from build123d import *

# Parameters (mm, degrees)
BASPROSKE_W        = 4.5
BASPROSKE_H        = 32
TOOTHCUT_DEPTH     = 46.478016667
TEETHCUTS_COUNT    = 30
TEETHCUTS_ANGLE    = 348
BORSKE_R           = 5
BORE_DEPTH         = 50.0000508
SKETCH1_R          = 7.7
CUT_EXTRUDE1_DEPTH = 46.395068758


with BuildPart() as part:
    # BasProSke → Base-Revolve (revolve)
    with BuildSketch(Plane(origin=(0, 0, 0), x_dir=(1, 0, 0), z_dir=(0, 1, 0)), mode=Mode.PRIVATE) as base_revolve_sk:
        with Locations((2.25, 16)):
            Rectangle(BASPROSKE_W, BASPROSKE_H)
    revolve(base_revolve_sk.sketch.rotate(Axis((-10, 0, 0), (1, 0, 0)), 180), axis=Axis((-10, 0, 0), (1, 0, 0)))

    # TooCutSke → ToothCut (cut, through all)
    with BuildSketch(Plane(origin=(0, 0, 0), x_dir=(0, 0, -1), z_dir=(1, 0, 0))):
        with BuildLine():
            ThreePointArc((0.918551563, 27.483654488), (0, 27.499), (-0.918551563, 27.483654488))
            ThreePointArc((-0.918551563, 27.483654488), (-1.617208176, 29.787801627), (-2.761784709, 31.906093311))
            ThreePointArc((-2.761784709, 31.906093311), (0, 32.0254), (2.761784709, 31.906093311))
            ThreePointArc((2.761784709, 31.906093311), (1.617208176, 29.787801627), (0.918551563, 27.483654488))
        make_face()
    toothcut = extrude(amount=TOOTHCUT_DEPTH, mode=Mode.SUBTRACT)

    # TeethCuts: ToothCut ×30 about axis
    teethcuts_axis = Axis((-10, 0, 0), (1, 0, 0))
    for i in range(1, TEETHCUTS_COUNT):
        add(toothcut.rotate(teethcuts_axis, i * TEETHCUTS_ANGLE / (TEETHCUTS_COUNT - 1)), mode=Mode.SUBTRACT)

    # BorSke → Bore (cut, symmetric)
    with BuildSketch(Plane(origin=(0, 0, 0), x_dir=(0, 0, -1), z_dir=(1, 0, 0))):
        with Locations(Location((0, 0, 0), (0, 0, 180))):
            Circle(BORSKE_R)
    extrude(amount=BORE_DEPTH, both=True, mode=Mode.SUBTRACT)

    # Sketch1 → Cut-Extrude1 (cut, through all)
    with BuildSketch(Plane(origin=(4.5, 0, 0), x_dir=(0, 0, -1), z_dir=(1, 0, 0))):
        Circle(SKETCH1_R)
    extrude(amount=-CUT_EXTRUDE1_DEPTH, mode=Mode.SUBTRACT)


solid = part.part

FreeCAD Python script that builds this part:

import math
import FreeCAD as App
import Part
import Sketcher
from FreeCAD import Vector
Q = App.Units.Quantity

doc = App.newDocument("Part")
body = doc.addObject("PartDesign::Body", "Body")

# Sketch on XZ plane
sketch1 = doc.addObject("Sketcher::SketchObject", "Sketch")
body.addObject(sketch1)
sketch1.AttachmentSupport = (doc.XZ_Plane, [""])
sketch1.MapMode = "FlatFace"
sketch1.addGeometry([
    Part.LineSegment(Vector(0, -32, 0), Vector(0, 0, 0)),
    Part.LineSegment(Vector(0, 0, 0), Vector(4.5, 0, 0)),
    Part.LineSegment(Vector(4.5, 0, 0), Vector(4.5, -32, 0)),
    Part.LineSegment(Vector(4.5, -32, 0), Vector(0, -32, 0)),
], False)
sketch1.addConstraint([
    Sketcher.Constraint("Coincident", 0, 2, 1, 1),
    Sketcher.Constraint("Coincident", 1, 2, 2, 1),
    Sketcher.Constraint("Coincident", 2, 2, 3, 1),
    Sketcher.Constraint("Coincident", 3, 2, 0, 1),
    Sketcher.Constraint("Vertical", 0),
    Sketcher.Constraint("Horizontal", 1),
    Sketcher.Constraint("Vertical", 2),
    Sketcher.Constraint("Horizontal", 3),
    Sketcher.Constraint("Coincident", 0, 2, -1, 1),
    Sketcher.Constraint("DistanceY", 0, 1, 0, 2, Q("32 mm")),
    Sketcher.Constraint("DistanceX", 1, 1, 1, 2, Q("4.5 mm")),
])
revolution = doc.addObject("PartDesign::Revolution", "Revolution")
body.addObject(revolution)
revolution.Profile = sketch1
revolution.ReferenceAxis = (sketch1, ["H_Axis"])
revolution.Angle = 360

# Sketch on YZ plane
sketch2 = doc.addObject("Sketcher::SketchObject", "Sketch001")
body.addObject(sketch2)
sketch2.AttachmentSupport = (doc.YZ_Plane, [""])
sketch2.MapMode = "FlatFace"
sketch2.addGeometry([
    Part.ArcOfCircle(Part.Circle(Vector(0, 0, 0), Vector(0, 0, 1), 27.499), math.radians(-1.914212), math.radians(1.914212)),
    Part.ArcOfCircle(Part.Circle(Vector(25.171243, -12.693642, 0), Vector(0, 0, 1), 12), math.radians(55.858574), math.radians(78.889547)),
    Part.ArcOfCircle(Part.Circle(Vector(0, 0, 0), Vector(0, 0, 1), 32.0254), math.radians(-4.947179), math.radians(4.947179)),
    Part.ArcOfCircle(Part.Circle(Vector(25.171243, 12.693642, 0), Vector(0, 0, 1), 12), math.radians(-78.889547), math.radians(-55.858574)),
], False)
sketch2.addConstraint([
    Sketcher.Constraint("Coincident", 0, 1, 1, 2),
    Sketcher.Constraint("Coincident", 1, 1, 2, 1),
    Sketcher.Constraint("Coincident", 2, 2, 3, 2),
    Sketcher.Constraint("Coincident", 3, 1, 0, 2),
    Sketcher.Constraint("Coincident", 0, 3, -1, 1),
    Sketcher.Constraint("Coincident", 2, 3, -1, 1),
    Sketcher.Constraint("Equal", 1, 3),
    Sketcher.Constraint("Symmetric", 1, 3, 3, 3, -1),
    Sketcher.Constraint("Radius", 1, Q("12 mm")),
    Sketcher.Constraint("Radius", 0, Q("27.499 mm")),
    Sketcher.Constraint("Radius", 2, Q("32.0254 mm")),
    Sketcher.Constraint("DistanceY", 1, 3, -1, 1, Q("12.693642 mm")),
    Sketcher.Constraint("DistanceY", 0, 1, -1, 1, Q("0.918552 mm")),
])
pocket1 = doc.addObject("PartDesign::Pocket", "Pocket")
body.addObject(pocket1)
pocket1.Profile = sketch2
pocket1.Type = "ThroughAll"
pocket1.Reversed = True
doc.recompute()

polarpattern = doc.addObject("PartDesign::PolarPattern", "PolarPattern")
body.addObject(polarpattern)
polarpattern.Originals = [pocket1]
polarpattern.Axis = (doc.X_Axis, [""])
polarpattern.Angle = 360
polarpattern.Occurrences = 30
body.Tip = polarpattern

# Sketch on YZ plane
sketch3 = doc.addObject("Sketcher::SketchObject", "Sketch002")
body.addObject(sketch3)
sketch3.AttachmentSupport = (doc.YZ_Plane, [""])
sketch3.MapMode = "FlatFace"
sketch3.addGeometry(Part.Circle(Vector(0, 0, 0), Vector(0, 0, 1), 5), False)
sketch3.addConstraint([
    Sketcher.Constraint("Coincident", 0, 3, -1, 1),
    Sketcher.Constraint("Diameter", 0, Q("10 mm")),
])
pocket2 = doc.addObject("PartDesign::Pocket", "Pocket001")
body.addObject(pocket2)
pocket2.Profile = sketch3
pocket2.Length = 100.000102
pocket2.Midplane = True

# Sketch on YZ plane
sketch4 = doc.addObject("Sketcher::SketchObject", "Sketch003")
body.addObject(sketch4)
sketch4.AttachmentSupport = (doc.YZ_Plane, [""])
sketch4.MapMode = "FlatFace"
sketch4.AttachmentOffset = App.Placement(Vector(0, 0, 4.5), App.Rotation())
sketch4.addGeometry(Part.Circle(Vector(0, 0, 0), Vector(0, 0, 1), 7.7), False)
sketch4.addConstraint([
    Sketcher.Constraint("Coincident", 0, 3, -1, 1),
    Sketcher.Constraint("Diameter", 0, Q("15.4 mm")),
])
pocket3 = doc.addObject("PartDesign::Pocket", "Pocket002")
body.addObject(pocket3)
pocket3.Profile = sketch4
pocket3.Type = "ThroughAll"

doc.recompute()
